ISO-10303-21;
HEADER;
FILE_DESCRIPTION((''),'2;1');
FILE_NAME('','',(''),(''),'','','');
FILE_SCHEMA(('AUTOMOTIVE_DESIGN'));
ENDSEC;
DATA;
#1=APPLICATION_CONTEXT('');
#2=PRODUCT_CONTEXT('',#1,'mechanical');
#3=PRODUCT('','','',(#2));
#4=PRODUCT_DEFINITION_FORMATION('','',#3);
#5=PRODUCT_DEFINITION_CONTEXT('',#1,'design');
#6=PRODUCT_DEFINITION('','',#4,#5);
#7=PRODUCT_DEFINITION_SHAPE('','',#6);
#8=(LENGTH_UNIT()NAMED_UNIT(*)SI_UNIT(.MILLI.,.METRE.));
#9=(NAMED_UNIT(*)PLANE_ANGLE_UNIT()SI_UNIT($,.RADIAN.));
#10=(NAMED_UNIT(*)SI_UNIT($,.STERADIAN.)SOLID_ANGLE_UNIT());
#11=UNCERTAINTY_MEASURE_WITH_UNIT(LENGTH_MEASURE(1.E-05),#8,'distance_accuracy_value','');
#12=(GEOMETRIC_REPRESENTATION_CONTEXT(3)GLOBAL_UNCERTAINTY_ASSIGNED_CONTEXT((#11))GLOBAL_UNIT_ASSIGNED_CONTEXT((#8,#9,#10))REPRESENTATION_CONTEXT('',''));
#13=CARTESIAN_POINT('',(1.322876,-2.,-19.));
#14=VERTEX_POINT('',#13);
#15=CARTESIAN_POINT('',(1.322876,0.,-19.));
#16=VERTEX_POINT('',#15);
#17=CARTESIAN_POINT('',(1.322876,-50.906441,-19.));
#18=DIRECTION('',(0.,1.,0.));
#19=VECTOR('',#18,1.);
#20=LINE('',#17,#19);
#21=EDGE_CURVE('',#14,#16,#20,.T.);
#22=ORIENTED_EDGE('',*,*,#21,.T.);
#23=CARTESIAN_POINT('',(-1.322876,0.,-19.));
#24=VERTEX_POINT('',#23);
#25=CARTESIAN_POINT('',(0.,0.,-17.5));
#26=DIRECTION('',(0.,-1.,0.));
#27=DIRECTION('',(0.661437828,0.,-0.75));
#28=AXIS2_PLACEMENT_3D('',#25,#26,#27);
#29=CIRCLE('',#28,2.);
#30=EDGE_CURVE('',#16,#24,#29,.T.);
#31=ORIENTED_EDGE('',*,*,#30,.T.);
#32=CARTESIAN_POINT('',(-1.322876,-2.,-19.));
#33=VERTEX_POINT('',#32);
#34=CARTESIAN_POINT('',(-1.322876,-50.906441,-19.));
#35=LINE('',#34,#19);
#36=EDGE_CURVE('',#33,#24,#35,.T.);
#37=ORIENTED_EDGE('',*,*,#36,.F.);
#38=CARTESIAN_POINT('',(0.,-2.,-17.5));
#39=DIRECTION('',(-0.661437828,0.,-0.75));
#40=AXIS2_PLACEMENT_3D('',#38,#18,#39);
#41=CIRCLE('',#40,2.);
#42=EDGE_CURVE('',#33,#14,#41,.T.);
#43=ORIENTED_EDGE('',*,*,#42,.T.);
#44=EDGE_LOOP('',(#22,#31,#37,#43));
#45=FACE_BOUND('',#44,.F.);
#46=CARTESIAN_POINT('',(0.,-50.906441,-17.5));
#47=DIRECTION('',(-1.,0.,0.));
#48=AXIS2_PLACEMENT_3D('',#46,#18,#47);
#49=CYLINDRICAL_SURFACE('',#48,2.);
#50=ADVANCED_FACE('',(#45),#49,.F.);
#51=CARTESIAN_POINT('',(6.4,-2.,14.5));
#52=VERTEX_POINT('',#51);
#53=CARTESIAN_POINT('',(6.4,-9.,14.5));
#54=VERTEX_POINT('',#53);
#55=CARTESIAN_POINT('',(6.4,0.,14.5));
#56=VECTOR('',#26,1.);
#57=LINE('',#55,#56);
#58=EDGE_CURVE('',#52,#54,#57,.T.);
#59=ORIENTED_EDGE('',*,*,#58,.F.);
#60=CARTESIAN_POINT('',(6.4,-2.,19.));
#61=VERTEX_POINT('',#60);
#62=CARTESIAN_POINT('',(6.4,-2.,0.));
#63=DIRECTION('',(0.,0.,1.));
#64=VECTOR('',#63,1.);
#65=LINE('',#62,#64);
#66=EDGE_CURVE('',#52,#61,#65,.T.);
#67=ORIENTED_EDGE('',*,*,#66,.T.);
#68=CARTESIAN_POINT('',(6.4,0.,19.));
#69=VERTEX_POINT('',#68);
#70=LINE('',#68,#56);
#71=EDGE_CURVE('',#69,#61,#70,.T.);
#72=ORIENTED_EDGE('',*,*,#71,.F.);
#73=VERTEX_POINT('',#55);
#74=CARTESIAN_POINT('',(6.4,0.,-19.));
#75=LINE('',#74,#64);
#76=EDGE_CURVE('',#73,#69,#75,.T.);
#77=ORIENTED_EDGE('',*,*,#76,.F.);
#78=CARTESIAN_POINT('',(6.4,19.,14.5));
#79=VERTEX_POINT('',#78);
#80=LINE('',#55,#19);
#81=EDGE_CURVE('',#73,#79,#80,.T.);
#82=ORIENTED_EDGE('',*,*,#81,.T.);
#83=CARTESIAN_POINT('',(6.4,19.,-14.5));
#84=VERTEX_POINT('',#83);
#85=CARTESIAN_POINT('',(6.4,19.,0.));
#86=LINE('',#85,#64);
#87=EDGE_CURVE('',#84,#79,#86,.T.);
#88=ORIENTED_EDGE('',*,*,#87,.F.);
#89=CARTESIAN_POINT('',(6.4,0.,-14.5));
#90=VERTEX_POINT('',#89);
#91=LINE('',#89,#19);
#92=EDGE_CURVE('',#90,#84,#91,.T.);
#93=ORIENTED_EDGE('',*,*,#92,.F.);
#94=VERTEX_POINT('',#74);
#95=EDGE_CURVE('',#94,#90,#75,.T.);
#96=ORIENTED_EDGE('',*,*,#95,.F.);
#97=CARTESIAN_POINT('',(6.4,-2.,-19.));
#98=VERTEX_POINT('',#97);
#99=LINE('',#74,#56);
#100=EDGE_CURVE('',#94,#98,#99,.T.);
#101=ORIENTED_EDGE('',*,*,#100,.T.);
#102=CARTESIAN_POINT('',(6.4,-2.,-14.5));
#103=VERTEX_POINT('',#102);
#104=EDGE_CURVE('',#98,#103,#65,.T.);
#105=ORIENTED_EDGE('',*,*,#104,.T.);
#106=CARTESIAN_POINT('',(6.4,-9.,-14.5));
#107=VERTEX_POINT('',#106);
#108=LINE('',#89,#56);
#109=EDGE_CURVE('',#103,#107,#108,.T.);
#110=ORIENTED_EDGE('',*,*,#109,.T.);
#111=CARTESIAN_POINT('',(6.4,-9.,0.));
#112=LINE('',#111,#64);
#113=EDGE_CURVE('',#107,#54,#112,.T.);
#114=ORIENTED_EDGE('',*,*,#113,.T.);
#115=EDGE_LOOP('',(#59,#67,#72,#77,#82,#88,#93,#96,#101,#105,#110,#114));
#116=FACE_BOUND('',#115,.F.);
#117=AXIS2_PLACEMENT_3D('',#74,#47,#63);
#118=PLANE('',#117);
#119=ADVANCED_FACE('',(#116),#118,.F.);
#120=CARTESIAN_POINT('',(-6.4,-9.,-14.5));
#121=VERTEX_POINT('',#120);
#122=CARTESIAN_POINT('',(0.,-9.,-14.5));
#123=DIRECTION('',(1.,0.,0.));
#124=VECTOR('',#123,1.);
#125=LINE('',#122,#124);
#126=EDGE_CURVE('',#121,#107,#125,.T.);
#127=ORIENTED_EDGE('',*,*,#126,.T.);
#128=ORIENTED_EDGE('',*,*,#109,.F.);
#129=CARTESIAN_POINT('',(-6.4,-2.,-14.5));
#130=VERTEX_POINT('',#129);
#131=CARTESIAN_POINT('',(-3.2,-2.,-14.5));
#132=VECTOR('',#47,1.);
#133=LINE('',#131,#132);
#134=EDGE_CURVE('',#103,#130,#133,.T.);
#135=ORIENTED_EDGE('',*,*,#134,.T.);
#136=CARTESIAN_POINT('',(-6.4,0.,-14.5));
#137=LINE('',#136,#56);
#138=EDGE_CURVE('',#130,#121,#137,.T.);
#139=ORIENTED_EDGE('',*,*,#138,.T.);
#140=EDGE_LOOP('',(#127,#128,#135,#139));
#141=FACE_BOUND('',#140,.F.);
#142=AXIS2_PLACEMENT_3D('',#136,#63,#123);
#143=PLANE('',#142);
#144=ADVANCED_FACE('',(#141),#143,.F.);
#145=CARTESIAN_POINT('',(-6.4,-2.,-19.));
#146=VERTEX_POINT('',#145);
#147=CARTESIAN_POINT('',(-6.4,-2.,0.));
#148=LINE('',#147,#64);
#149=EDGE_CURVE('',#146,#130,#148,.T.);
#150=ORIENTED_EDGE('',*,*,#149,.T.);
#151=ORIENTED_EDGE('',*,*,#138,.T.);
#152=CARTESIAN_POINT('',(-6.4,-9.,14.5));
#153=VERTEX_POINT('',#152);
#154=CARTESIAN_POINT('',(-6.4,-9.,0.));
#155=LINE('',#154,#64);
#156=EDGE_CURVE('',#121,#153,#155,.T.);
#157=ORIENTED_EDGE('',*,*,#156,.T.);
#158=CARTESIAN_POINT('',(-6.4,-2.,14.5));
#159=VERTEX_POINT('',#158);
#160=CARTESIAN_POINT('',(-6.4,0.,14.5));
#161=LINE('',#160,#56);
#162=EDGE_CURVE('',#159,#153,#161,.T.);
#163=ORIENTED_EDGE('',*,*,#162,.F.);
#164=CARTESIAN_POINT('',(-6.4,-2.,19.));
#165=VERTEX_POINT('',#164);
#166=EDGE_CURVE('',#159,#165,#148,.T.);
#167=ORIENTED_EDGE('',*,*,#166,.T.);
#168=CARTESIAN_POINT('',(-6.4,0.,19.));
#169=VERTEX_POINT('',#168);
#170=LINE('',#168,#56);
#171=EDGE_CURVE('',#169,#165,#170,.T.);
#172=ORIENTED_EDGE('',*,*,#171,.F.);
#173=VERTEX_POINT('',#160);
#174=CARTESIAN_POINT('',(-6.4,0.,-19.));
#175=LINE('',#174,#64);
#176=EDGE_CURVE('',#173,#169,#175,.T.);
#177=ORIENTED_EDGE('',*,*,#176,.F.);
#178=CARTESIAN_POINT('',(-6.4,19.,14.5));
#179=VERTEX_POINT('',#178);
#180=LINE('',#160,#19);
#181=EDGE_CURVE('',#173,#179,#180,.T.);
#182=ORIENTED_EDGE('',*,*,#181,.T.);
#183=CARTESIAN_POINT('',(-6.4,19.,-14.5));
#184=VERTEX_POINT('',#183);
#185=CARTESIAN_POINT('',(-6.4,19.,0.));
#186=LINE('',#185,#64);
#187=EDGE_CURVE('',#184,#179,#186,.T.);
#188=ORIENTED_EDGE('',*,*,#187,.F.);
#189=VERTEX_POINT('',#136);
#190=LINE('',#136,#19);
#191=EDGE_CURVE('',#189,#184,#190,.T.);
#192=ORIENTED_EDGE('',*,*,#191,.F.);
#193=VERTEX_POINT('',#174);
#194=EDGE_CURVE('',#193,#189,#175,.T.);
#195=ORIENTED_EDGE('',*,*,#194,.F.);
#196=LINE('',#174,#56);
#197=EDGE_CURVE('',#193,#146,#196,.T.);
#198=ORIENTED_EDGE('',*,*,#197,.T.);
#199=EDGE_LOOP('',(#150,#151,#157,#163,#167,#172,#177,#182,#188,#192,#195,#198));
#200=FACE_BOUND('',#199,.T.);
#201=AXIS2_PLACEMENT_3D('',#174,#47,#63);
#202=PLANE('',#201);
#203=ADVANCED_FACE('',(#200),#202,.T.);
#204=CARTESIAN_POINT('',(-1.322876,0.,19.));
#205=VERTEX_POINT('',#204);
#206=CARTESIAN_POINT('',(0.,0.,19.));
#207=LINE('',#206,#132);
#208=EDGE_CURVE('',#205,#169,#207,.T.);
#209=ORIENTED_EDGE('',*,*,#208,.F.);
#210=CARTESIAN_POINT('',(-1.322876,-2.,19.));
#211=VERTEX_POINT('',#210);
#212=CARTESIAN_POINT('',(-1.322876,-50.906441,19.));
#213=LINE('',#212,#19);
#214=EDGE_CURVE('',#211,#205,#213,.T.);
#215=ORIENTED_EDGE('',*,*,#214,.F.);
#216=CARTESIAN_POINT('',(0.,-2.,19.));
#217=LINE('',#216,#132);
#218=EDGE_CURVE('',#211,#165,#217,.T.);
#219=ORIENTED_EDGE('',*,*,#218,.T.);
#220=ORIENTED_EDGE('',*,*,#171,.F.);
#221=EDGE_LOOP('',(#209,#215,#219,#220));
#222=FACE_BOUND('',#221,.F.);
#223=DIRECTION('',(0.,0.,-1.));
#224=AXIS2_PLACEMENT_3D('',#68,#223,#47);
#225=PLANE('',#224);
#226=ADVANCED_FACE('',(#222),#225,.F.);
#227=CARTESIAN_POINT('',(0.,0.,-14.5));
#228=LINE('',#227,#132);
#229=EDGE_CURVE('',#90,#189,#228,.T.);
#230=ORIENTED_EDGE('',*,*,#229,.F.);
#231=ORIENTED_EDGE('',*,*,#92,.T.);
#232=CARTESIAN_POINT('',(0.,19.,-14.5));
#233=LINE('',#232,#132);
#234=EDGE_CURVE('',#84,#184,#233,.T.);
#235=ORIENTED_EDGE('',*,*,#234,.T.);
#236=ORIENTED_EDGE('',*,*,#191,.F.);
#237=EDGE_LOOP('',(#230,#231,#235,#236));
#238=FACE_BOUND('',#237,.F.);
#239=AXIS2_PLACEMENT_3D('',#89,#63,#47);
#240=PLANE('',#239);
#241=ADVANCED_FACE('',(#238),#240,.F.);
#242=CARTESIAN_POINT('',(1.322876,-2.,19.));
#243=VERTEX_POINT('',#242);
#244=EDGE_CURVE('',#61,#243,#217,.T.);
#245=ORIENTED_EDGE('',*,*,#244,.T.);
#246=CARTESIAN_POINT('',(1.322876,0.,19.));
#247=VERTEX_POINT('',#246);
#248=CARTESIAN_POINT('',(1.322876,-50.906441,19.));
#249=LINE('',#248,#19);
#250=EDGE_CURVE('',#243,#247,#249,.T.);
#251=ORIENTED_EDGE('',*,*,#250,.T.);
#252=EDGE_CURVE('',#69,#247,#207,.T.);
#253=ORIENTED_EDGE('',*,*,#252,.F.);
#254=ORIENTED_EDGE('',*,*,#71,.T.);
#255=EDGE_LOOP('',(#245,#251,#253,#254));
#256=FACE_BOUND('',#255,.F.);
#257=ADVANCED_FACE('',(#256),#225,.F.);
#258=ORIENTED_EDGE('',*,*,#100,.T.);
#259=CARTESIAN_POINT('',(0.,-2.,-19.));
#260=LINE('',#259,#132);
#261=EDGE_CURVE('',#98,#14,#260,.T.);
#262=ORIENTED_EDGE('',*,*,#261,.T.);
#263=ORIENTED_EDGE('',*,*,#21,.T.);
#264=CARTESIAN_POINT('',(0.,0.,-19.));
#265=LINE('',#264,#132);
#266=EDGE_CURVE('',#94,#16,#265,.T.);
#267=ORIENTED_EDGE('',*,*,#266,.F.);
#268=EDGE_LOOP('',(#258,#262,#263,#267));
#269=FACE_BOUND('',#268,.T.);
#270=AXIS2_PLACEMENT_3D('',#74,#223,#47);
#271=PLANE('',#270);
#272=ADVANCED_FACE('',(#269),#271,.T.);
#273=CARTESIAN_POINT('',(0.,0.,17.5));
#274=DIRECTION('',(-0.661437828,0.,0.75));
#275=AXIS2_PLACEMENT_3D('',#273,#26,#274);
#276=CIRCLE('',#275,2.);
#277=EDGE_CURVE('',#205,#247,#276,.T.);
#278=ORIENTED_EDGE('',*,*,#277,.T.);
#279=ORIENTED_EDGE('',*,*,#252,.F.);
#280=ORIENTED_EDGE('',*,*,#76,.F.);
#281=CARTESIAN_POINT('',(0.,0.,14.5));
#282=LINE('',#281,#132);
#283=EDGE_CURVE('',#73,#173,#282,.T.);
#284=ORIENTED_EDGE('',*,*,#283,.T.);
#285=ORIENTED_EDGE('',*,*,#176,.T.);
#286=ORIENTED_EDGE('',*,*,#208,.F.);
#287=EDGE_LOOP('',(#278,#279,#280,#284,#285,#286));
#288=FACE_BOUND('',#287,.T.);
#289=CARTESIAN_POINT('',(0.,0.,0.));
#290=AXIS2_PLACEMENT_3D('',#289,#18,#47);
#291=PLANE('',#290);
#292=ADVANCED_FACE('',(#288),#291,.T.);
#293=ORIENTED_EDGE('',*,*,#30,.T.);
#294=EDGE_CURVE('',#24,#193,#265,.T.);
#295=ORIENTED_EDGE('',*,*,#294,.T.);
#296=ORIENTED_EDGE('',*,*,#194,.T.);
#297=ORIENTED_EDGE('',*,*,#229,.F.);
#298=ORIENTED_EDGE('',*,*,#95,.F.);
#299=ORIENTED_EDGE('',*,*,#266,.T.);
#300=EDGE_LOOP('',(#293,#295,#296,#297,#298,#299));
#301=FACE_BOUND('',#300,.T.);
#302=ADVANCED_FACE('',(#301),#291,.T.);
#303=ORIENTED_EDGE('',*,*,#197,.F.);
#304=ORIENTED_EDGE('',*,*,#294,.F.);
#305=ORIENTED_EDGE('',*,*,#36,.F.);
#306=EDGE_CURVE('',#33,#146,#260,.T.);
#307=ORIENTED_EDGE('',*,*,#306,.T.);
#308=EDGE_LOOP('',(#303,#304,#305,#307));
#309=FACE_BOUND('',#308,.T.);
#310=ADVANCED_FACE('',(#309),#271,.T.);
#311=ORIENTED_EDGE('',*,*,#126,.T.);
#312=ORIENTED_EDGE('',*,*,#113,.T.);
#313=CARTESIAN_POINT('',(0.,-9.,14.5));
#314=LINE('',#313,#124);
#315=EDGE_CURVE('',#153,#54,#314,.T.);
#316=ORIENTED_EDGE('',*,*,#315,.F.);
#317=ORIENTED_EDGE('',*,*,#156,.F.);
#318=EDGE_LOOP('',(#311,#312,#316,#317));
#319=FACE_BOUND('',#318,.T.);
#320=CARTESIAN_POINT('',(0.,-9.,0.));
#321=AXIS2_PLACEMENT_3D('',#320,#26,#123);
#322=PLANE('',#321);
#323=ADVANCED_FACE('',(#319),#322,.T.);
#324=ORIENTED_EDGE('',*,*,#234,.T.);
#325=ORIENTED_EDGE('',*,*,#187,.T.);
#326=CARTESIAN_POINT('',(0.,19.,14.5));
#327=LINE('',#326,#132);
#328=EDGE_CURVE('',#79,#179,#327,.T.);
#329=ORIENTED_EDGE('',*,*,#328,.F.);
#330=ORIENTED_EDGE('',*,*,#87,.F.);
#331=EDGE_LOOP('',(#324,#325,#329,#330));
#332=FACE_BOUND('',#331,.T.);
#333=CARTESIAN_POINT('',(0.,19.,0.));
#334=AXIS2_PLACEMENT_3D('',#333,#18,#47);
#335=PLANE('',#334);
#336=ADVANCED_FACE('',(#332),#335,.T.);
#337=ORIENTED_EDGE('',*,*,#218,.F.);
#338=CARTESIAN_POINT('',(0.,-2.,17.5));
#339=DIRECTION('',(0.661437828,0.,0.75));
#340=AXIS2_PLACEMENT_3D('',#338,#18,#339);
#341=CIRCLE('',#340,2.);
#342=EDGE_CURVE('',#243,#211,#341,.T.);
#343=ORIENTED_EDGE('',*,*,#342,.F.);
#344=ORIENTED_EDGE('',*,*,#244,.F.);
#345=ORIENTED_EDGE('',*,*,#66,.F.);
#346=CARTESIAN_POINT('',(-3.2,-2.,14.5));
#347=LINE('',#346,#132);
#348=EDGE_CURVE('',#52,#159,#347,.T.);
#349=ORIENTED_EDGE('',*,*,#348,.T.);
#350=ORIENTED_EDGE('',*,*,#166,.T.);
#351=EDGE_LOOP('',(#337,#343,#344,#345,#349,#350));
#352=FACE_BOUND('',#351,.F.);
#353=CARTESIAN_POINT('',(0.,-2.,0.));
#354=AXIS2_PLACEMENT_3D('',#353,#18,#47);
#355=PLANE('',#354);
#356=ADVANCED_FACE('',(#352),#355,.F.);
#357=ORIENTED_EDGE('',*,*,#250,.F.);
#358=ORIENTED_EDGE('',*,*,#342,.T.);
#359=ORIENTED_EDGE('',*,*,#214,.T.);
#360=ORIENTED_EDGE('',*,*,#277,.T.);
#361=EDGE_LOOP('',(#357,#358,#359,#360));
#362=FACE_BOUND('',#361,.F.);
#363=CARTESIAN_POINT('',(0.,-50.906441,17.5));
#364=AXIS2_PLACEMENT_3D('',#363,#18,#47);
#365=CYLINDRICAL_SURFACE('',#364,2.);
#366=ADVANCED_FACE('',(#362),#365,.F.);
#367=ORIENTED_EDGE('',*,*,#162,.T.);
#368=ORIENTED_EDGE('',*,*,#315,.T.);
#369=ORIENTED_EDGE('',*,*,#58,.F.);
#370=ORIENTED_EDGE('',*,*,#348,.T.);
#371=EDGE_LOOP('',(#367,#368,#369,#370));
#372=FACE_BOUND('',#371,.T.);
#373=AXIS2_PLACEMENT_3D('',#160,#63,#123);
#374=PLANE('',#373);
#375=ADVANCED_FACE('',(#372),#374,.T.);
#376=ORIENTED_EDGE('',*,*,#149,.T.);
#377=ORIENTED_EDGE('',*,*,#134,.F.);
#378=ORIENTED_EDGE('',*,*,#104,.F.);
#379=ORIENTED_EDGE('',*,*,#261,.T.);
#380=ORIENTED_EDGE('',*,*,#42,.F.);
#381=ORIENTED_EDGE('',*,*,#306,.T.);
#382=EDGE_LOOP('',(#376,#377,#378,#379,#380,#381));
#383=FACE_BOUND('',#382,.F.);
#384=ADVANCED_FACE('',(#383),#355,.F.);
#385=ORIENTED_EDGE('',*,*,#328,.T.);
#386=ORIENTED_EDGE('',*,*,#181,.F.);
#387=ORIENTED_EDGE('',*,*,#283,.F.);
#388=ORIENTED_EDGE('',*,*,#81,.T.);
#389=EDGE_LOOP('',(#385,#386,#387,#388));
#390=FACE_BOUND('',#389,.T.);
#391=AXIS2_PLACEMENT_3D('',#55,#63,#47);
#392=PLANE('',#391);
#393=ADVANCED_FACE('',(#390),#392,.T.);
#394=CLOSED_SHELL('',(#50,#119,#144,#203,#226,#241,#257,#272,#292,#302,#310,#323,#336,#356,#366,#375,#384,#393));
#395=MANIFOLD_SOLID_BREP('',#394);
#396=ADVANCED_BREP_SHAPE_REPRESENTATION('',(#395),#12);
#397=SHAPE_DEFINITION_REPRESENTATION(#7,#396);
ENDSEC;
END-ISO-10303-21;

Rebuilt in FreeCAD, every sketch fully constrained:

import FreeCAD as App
import Part
import Sketcher
Q = App.Units.Quantity

doc = App.newDocument("Part")
body = doc.addObject("PartDesign::Body", "Body")

sketch1 = body.newObject("Sketcher::SketchObject", "Sketch")
sketch1.AttachmentSupport = (doc.getObject("XZ_Plane"), [""])
sketch1.MapMode = "FlatFace"
sketch1.addGeometry(Part.LineSegment(App.Vector(-6, 14, 0), App.Vector(-6, -14, 0)), False)
sketch1.addGeometry(Part.LineSegment(App.Vector(-6, -14, 0), App.Vector(6, -14, 0)), False)
sketch1.addGeometry(Part.LineSegment(App.Vector(6, -14, 0), App.Vector(6, 14, 0)), False)
sketch1.addGeometry(Part.LineSegment(App.Vector(6, 14, 0), App.Vector(-6, 14, 0)), False)
sketch1.addConstraint(Sketcher.Constraint("Coincident", 0, 2, 1, 1))
sketch1.addConstraint(Sketcher.Constraint("Coincident", 1, 2, 2, 1))
sketch1.addConstraint(Sketcher.Constraint("Coincident", 2, 2, 3, 1))
sketch1.addConstraint(Sketcher.Constraint("Coincident", 3, 2, 0, 1))
sketch1.addConstraint(Sketcher.Constraint("Vertical", 0))
sketch1.addConstraint(Sketcher.Constraint("Horizontal", 1))
sketch1.addConstraint(Sketcher.Constraint("Vertical", 2))
sketch1.addConstraint(Sketcher.Constraint("Horizontal", 3))
sketch1.addConstraint(Sketcher.Constraint("Symmetric", 0, 2, 2, 2, -1, 1))
sketch1.addConstraint(Sketcher.Constraint("DistanceY", 0, 2, 0, 1, Q("29 mm")))
sketch1.addConstraint(Sketcher.Constraint("DistanceX", 1, 1, 1, 2, Q("12.8 mm")))
pad1 = body.newObject("PartDesign::Pad", "Pad")
pad1.Profile = sketch1
pad1.Length = 9

sketch2 = body.newObject("Sketcher::SketchObject", "Sketch001")
sketch2.AttachmentSupport = (doc.getObject("XZ_Plane"), [""])
sketch2.MapMode = "FlatFace"
sketch2.addGeometry(Part.LineSegment(App.Vector(6, 19, 0), App.Vector(6, -19, 0)), False)
sketch2.addGeometry(Part.LineSegment(App.Vector(6, -19, 0), App.Vector(-6, -19, 0)), False)
sketch2.addGeometry(Part.LineSegment(App.Vector(-6, -19, 0), App.Vector(-6, 19, 0)), False)
sketch2.addGeometry(Part.LineSegment(App.Vector(-6, 19, 0), App.Vector(6, 19, 0)), False)
sketch2.addConstraint(Sketcher.Constraint("Coincident", 0, 2, 1, 1))
sketch2.addConstraint(Sketcher.Constraint("Coincident", 1, 2, 2, 1))
sketch2.addConstraint(Sketcher.Constraint("Coincident", 2, 2, 3, 1))
sketch2.addConstraint(Sketcher.Constraint("Coincident", 3, 2, 0, 1))
sketch2.addConstraint(Sketcher.Constraint("Vertical", 0))
sketch2.addConstraint(Sketcher.Constraint("Horizontal", 1))
sketch2.addConstraint(Sketcher.Constraint("Vertical", 2))
sketch2.addConstraint(Sketcher.Constraint("Horizontal", 3))
sketch2.addConstraint(Sketcher.Constraint("Symmetric", 0, 2, 2, 2, -1, 1))
sketch2.addConstraint(Sketcher.Constraint("DistanceY", 0, 2, 0, 1, Q("38 mm")))
sketch2.addConstraint(Sketcher.Constraint("DistanceX", 1, 2, 1, 1, Q("12.8 mm")))
pad2 = body.newObject("PartDesign::Pad", "Pad001")
pad2.Profile = sketch2
pad2.Length = 2

sketch3 = body.newObject("Sketcher::SketchObject", "Sketch002")
sketch3.AttachmentSupport = (doc.getObject("XZ_Plane"), [""])
sketch3.MapMode = "FlatFace"
sketch3.addGeometry(Part.LineSegment(App.Vector(6, 14, 0), App.Vector(6, -14, 0)), False)
sketch3.addGeometry(Part.LineSegment(App.Vector(6, -14, 0), App.Vector(-6, -14, 0)), False)
sketch3.addGeometry(Part.LineSegment(App.Vector(-6, -14, 0), App.Vector(-6, 14, 0)), False)
sketch3.addGeometry(Part.LineSegment(App.Vector(-6, 14, 0), App.Vector(6, 14, 0)), False)
sketch3.addConstraint(Sketcher.Constraint("Coincident", 0, 2, 1, 1))
sketch3.addConstraint(Sketcher.Constraint("Coincident", 1, 2, 2, 1))
sketch3.addConstraint(Sketcher.Constraint("Coincident", 2, 2, 3, 1))
sketch3.addConstraint(Sketcher.Constraint("Coincident", 3, 2, 0, 1))
sketch3.addConstraint(Sketcher.Constraint("Vertical", 0))
sketch3.addConstraint(Sketcher.Constraint("Horizontal", 1))
sketch3.addConstraint(Sketcher.Constraint("Vertical", 2))
sketch3.addConstraint(Sketcher.Constraint("Horizontal", 3))
sketch3.addConstraint(Sketcher.Constraint("Symmetric", 0, 2, 2, 2, -1, 1))
sketch3.addConstraint(Sketcher.Constraint("DistanceY", 0, 2, 0, 1, Q("29 mm")))
sketch3.addConstraint(Sketcher.Constraint("DistanceX", 1, 2, 1, 1, Q("12.8 mm")))
pad3 = body.newObject("PartDesign::Pad", "Pad002")
pad3.Profile = sketch3
pad3.Length = 19
pad3.Reversed = True

sketch4 = body.newObject("Sketcher::SketchObject", "Sketch003")
sketch4.AttachmentSupport = (doc.getObject("XZ_Plane"), [""])
sketch4.MapMode = "FlatFace"
sketch4.AttachmentOffset = App.Placement(App.Vector(0, 0, 2), App.Rotation())
sketch4.addGeometry(Part.Circle(App.Vector(0, -17.5, 0), App.Vector(0, 0, 1), 2), False)
sketch4.addGeometry(Part.Circle(App.Vector(0, 17.5, 0), App.Vector(0, 0, 1), 2), False)
sketch4.addConstraint(Sketcher.Constraint("Equal", 0, 1))
sketch4.addConstraint(Sketcher.Constraint("Symmetric", 0, 3, 1, 3, -1, 1))
sketch4.addConstraint(Sketcher.Constraint("PointOnObject", 0, 3, -2))
sketch4.addConstraint(Sketcher.Constraint("Diameter", 0, Q("4 mm")))
sketch4.addConstraint(Sketcher.Constraint("DistanceY", 0, 3, 1, 3, Q("35 mm")))
doc.recompute()
hole = body.newObject("PartDesign::Hole", "Hole")
hole.Profile = sketch4
hole.ThreadType = "None"
hole.Diameter = 4
hole.DepthType = "ThroughAll"

doc.recompute()
